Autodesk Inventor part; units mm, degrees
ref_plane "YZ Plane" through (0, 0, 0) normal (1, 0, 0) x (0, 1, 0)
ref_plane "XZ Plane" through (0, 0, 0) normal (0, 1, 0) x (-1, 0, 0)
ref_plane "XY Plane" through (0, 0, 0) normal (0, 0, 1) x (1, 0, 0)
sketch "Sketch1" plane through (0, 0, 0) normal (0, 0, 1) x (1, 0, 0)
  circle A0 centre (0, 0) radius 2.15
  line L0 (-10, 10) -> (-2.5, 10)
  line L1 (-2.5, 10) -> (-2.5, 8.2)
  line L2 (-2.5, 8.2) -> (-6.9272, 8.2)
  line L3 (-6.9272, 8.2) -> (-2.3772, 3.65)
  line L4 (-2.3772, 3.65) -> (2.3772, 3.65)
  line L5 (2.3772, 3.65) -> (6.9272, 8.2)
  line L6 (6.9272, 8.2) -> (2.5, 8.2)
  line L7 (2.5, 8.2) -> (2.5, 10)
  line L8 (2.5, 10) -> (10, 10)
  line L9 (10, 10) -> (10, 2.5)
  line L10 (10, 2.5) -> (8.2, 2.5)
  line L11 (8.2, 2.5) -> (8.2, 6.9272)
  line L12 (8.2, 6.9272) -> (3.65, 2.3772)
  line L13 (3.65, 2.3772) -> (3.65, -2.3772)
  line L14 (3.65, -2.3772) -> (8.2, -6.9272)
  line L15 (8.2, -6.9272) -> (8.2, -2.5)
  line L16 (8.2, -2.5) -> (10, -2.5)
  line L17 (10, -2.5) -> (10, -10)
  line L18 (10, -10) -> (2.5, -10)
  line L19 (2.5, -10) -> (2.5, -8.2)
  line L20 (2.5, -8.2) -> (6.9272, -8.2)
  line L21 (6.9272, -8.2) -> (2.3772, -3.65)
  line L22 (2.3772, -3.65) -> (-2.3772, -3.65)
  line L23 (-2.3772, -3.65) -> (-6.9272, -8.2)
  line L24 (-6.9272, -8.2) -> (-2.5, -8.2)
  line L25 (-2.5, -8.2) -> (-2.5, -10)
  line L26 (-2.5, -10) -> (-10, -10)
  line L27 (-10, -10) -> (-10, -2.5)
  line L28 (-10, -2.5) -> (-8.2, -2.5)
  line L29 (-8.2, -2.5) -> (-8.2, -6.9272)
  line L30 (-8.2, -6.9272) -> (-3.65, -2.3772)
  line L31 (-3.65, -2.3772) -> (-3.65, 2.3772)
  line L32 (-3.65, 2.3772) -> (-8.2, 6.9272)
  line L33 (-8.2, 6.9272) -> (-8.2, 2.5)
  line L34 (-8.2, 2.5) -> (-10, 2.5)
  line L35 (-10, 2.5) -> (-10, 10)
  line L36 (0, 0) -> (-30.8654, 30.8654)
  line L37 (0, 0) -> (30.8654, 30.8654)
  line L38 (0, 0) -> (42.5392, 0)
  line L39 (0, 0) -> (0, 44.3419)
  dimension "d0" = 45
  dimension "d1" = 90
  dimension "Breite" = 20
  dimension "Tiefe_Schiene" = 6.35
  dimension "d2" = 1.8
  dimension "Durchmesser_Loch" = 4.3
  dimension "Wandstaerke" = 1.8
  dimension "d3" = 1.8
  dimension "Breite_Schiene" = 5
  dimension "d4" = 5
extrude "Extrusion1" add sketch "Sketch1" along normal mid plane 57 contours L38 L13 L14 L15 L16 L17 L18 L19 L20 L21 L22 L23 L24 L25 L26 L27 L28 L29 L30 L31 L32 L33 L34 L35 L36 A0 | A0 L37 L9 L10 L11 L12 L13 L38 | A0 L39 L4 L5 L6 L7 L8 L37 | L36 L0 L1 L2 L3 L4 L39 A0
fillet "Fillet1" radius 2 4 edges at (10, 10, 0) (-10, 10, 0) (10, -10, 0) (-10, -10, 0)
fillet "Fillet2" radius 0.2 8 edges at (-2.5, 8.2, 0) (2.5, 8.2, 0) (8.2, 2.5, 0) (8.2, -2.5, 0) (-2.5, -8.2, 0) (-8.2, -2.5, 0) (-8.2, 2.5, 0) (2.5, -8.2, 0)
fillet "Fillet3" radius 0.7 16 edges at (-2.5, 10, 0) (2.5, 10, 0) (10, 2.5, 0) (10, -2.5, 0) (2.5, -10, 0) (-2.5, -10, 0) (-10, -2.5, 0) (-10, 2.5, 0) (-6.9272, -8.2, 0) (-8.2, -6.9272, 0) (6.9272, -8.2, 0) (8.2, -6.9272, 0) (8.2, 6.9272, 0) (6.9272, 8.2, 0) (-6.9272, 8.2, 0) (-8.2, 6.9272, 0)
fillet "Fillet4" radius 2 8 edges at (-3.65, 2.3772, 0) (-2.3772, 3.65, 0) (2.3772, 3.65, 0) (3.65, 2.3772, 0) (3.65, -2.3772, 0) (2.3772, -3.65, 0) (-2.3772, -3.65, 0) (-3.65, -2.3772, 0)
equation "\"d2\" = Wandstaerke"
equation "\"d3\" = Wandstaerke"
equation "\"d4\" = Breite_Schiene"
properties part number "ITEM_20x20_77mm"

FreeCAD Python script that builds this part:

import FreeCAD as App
import Part
import Sketcher

V = App.Vector


def edges_at(feature, points):
    """Names of the edges that pass closest to the given points."""
    edges = feature.Shape.Edges
    near = lambda p: min(range(len(edges)), key=lambda i: edges[i].distToShape(Part.Vertex(*p))[0])
    return sorted({f"Edge{near(p) + 1}" for p in points})

doc = App.newDocument("Part")
params = doc.addObject("Spreadsheet::Sheet", "Params")
for row, (alias, value) in enumerate([
    ("sketch1_diameter", "4.3 mm"),
    ("sketch1_width", "1.8 mm"),
    ("sketch1_width2", "7.5 mm"),
    ("pad1_length", "57 mm"),
    ("fillet_radius", "2 mm"),
    ("fillet2_radius", "0.2 mm"),
    ("fillet3_radius", "0.7 mm"),
    ("fillet4_radius", "2 mm"),
], start=1):
    params.set(f"A{row}", alias)
    params.set(f"B{row}", "=" + value)
    params.setAlias(f"B{row}", alias)

body = doc.addObject("PartDesign::Body", "Body")

# Sketch on XY plane
sketch1 = doc.addObject("Sketcher::SketchObject", "Sketch")
body.addObject(sketch1)
sketch1.AttachmentSupport = (doc.XY_Plane, [""])
sketch1.MapMode = "FlatFace"
sketch1.addGeometry([
    Part.LineSegment(V(3.65, -2.3772, 0), V(3.65, 2.3772, 0)),  # 0
    Part.LineSegment(V(3.65, 2.3772, 0), V(8.2, 6.9272, 0)),  # 1
    Part.LineSegment(V(8.2, 6.9272, 0), V(8.2, 2.5, 0)),  # 2
    Part.LineSegment(V(8.2, 2.5, 0), V(10, 2.5, 0)),  # 3
    Part.LineSegment(V(10, 2.5, 0), V(10, 10, 0)),  # 4
    Part.LineSegment(V(10, 10, 0), V(2.5, 10, 0)),  # 5
    Part.LineSegment(V(2.5, 10, 0), V(2.5, 8.2, 0)),  # 6
    Part.LineSegment(V(2.5, 8.2, 0), V(6.9272, 8.2, 0)),  # 7
    Part.LineSegment(V(6.9272, 8.2, 0), V(2.3772, 3.65, 0)),  # 8
    Part.LineSegment(V(2.3772, 3.65, 0), V(-2.3772, 3.65, 0)),  # 9
    Part.LineSegment(V(-2.3772, 3.65, 0), V(-6.9272, 8.2, 0)),  # 10
    Part.LineSegment(V(-6.9272, 8.2, 0), V(-2.5, 8.2, 0)),  # 11
    Part.LineSegment(V(-2.5, 8.2, 0), V(-2.5, 10, 0)),  # 12
    Part.LineSegment(V(-2.5, 10, 0), V(-10, 10, 0)),  # 13
    Part.LineSegment(V(-10, 10, 0), V(-10, 2.5, 0)),  # 14
    Part.LineSegment(V(-10, 2.5, 0), V(-8.2, 2.5, 0)),  # 15
    Part.LineSegment(V(-8.2, 2.5, 0), V(-8.2, 6.9272, 0)),  # 16
    Part.LineSegment(V(-8.2, 6.9272, 0), V(-3.65, 2.3772, 0)),  # 17
    Part.LineSegment(V(-3.65, 2.3772, 0), V(-3.65, -2.3772, 0)),  # 18
    Part.LineSegment(V(-3.65, -2.3772, 0), V(-8.2, -6.9272, 0)),  # 19
    Part.LineSegment(V(-8.2, -6.9272, 0), V(-8.2, -2.5, 0)),  # 20
    Part.LineSegment(V(-8.2, -2.5, 0), V(-10, -2.5, 0)),  # 21
    Part.LineSegment(V(-10, -2.5, 0), V(-10, -10, 0)),  # 22
    Part.LineSegment(V(-10, -10, 0), V(-2.5, -10, 0)),  # 23
    Part.LineSegment(V(-2.5, -10, 0), V(-2.5, -8.2, 0)),  # 24
    Part.LineSegment(V(-2.5, -8.2, 0), V(-6.9272, -8.2, 0)),  # 25
    Part.LineSegment(V(-6.9272, -8.2, 0), V(-2.3772, -3.65, 0)),  # 26
    Part.LineSegment(V(-2.3772, -3.65, 0), V(2.3772, -3.65, 0)),  # 27
    Part.LineSegment(V(2.3772, -3.65, 0), V(6.9272, -8.2, 0)),  # 28
    Part.LineSegment(V(6.9272, -8.2, 0), V(2.5, -8.2, 0)),  # 29
    Part.LineSegment(V(2.5, -8.2, 0), V(2.5, -10, 0)),  # 30
    Part.LineSegment(V(2.5, -10, 0), V(10, -10, 0)),  # 31
    Part.LineSegment(V(10, -10, 0), V(10, -2.5, 0)),  # 32
    Part.LineSegment(V(10, -2.5, 0), V(8.2, -2.5, 0)),  # 33
    Part.LineSegment(V(8.2, -2.5, 0), V(8.2, -6.9272, 0)),  # 34
    Part.LineSegment(V(8.2, -6.9272, 0), V(3.65, -2.3772, 0)),  # 35
    Part.Circle(V(0, 0, 0), V(0, 0, 1), 2.15),  # 36
], False)
sketch1.addConstraint([
    Sketcher.Constraint("Coincident", 0, 2, 1, 1),
    Sketcher.Constraint("Coincident", 1, 2, 2, 1),
    Sketcher.Constraint("Coincident", 2, 2, 3, 1),
    Sketcher.Constraint("Coincident", 3, 2, 4, 1),
    Sketcher.Constraint("Coincident", 4, 2, 5, 1),
    Sketcher.Constraint("Coincident", 5, 2, 6, 1),
    Sketcher.Constraint("Coincident", 6, 2, 7, 1),
    Sketcher.Constraint("Coincident", 7, 2, 8, 1),
    Sketcher.Constraint("Coincident", 8, 2, 9, 1),
    Sketcher.Constraint("Coincident", 9, 2, 10, 1),
    Sketcher.Constraint("Coincident", 10, 2, 11, 1),
    Sketcher.Constraint("Coincident", 11, 2, 12, 1),
    Sketcher.Constraint("Coincident", 12, 2, 13, 1),
    Sketcher.Constraint("Coincident", 13, 2, 14, 1),
    Sketcher.Constraint("Coincident", 14, 2, 15, 1),
    Sketcher.Constraint("Coincident", 15, 2, 16, 1),
    Sketcher.Constraint("Coincident", 16, 2, 17, 1),
    Sketcher.Constraint("Coincident", 17, 2, 18, 1),
    Sketcher.Constraint("Coincident", 18, 2, 19, 1),
    Sketcher.Constraint("Coincident", 19, 2, 20, 1),
    Sketcher.Constraint("Coincident", 20, 2, 21, 1),
    Sketcher.Constraint("Coincident", 21, 2, 22, 1),
    Sketcher.Constraint("Coincident", 22, 2, 23, 1),
    Sketcher.Constraint("Coincident", 23, 2, 24, 1),
    Sketcher.Constraint("Coincident", 24, 2, 25, 1),
    Sketcher.Constraint("Coincident", 25, 2, 26, 1),
    Sketcher.Constraint("Coincident", 26, 2, 27, 1),
    Sketcher.Constraint("Coincident", 27, 2, 28, 1),
    Sketcher.Constraint("Coincident", 28, 2, 29, 1),
    Sketcher.Constraint("Coincident", 29, 2, 30, 1),
    Sketcher.Constraint("Coincident", 30, 2, 31, 1),
    Sketcher.Constraint("Coincident", 31, 2, 32, 1),
    Sketcher.Constraint("Coincident", 32, 2, 33, 1),
    Sketcher.Constraint("Coincident", 33, 2, 34, 1),
    Sketcher.Constraint("Coincident", 34, 2, 35, 1),
    Sketcher.Constraint("Coincident", 35, 2, 0, 1),
    Sketcher.Constraint("Vertical", 0),
    Sketcher.Constraint("Vertical", 2),
    Sketcher.Constraint("Horizontal", 3),
    Sketcher.Constraint("Vertical", 4),
    Sketcher.Constraint("Horizontal", 5),
    Sketcher.Constraint("Vertical", 6),
    Sketcher.Constraint("Horizontal", 7),
    Sketcher.Constraint("Horizontal", 9),
    Sketcher.Constraint("Horizontal", 11),
    Sketcher.Constraint("Vertical", 12),
    Sketcher.Constraint("Horizontal", 13),
    Sketcher.Constraint("Vertical", 14),
    Sketcher.Constraint("Horizontal", 15),
    Sketcher.Constraint("Vertical", 16),
    Sketcher.Constraint("Vertical", 18),
    Sketcher.Constraint("Vertical", 20),
    Sketcher.Constraint("Horizontal", 21),
    Sketcher.Constraint("Vertical", 22),
    Sketcher.Constraint("Horizontal", 23),
    Sketcher.Constraint("Vertical", 24),
    Sketcher.Constraint("Horizontal", 25),
    Sketcher.Constraint("Horizontal", 27),
    Sketcher.Constraint("Horizontal", 29),
    Sketcher.Constraint("Vertical", 30),
    Sketcher.Constraint("Horizontal", 31),
    Sketcher.Constraint("Vertical", 32),
    Sketcher.Constraint("Horizontal", 33),
    Sketcher.Constraint("Vertical", 34),
    Sketcher.Constraint("Coincident", 36, 3, -1, 1),
    Sketcher.Constraint("Symmetric", 0, 2, 18, 2, -1, 1),
    Sketcher.Constraint("Symmetric", 1, 2, 19, 2, -1, 1),
    Sketcher.Constraint("Symmetric", 3, 2, 21, 2, -1, 1),
    Sketcher.Constraint("Symmetric", 5, 2, 23, 2, -1, 1),
    Sketcher.Constraint("Symmetric", 7, 2, 25, 2, -1, 1),
    Sketcher.Constraint("Symmetric", 8, 2, 26, 2, -1, 1),
    Sketcher.Constraint("Symmetric", 10, 2, 28, 2, -1, 1),
    Sketcher.Constraint("Symmetric", 12, 2, 30, 2, -1, 1),
    Sketcher.Constraint("Symmetric", 14, 2, 32, 2, -1, 1),
    Sketcher.Constraint("Symmetric", 16, 2, 34, 2, -1, 1),
    Sketcher.Constraint("Symmetric", 7, 2, 10, 2, -2),
    Sketcher.Constraint("Symmetric", 5, 2, 12, 2, -2),
    Sketcher.Constraint("Symmetric", 3, 2, 14, 2, -2),
    Sketcher.Constraint("Symmetric", 1, 2, 16, 2, -2),
    Sketcher.Constraint("Parallel", 1, 8),
    Sketcher.Constraint("Perpendicular", 8, 10),
    Sketcher.Constraint("Parallel", 10, 17),
    Sketcher.Constraint("Perpendicular", 26, 28),
    Sketcher.Constraint("Parallel", 28, 35),
    Sketcher.Constraint("Horizontal", 0, 2, 17, 2),
    Sketcher.Constraint("Equal", 27, 0),
    Sketcher.Constraint("Equal", 29, 2),
    Sketcher.Constraint("Equal", 31, 4),
    Sketcher.Constraint("Equal", 33, 6),
    Sketcher.Constraint("Equal", 1, 8),
    Sketcher.Constraint("Diameter", 36, 4.3),
    Sketcher.Constraint("DistanceX", 3, 1, 3, 2, 1.8),
    Sketcher.Constraint("DistanceX", 11, 2, 6, 2, 5.0),
    Sketcher.Constraint("DistanceX", 0, 2, 3, 2, 6.35),
    Sketcher.Constraint("DistanceX", 5, 2, 5, 1, 7.5),
    Sketcher.Constraint("DistanceX", 7, 1, 7, 2, 4.4272),
])
sketch1.setExpression("Constraints[90]", "Params.sketch1_diameter")
sketch1.setExpression("Constraints[91]", "Params.sketch1_width")
sketch1.setExpression("Constraints[94]", "Params.sketch1_width2")
pad1 = doc.addObject("PartDesign::Pad", "Pad")
body.addObject(pad1)
pad1.Profile = sketch1
pad1.setExpression("Length", "Params.pad1_length")
pad1.Midplane = True
doc.recompute()

fillet = doc.addObject("PartDesign::Fillet", "Fillet")
body.addObject(fillet)
fillet.Base = (pad1, edges_at(pad1, [
    (10, 10, 0),
    (-10, 10, 0),
    (10, -10, 0),
    (-10, -10, 0),
]))
fillet.setExpression("Radius", "Params.fillet_radius")
doc.recompute()

fillet2 = doc.addObject("PartDesign::Fillet", "Fillet001")
body.addObject(fillet2)
fillet2.Base = (fillet, edges_at(fillet, [
    (-2.5, 8.2, 0),
    (2.5, 8.2, 0),
    (8.2, 2.5, 0),
    (8.2, -2.5, 0),
    (-2.5, -8.2, 0),
    (-8.2, -2.5, 0),
    (-8.2, 2.5, 0),
    (2.5, -8.2, 0),
]))
fillet2.setExpression("Radius", "Params.fillet2_radius")
doc.recompute()

fillet3 = doc.addObject("PartDesign::Fillet", "Fillet002")
body.addObject(fillet3)
fillet3.Base = (fillet2, edges_at(fillet2, [
    (-2.5, 10, 0),
    (2.5, 10, 0),
    (10, 2.5, 0),
    (10, -2.5, 0),
    (2.5, -10, 0),
    (-2.5, -10, 0),
    (-10, -2.5, 0),
    (-10, 2.5, 0),
    (-6.927, -8.2, 0),
    (-8.2, -6.927, 0),
    (6.927, -8.2, 0),
    (8.2, -6.927, 0),
    (8.2, 6.927, 0),
    (6.927, 8.2, 0),
    (-6.927, 8.2, 0),
    (-8.2, 6.927, 0),
]))
fillet3.setExpression("Radius", "Params.fillet3_radius")
doc.recompute()

fillet4 = doc.addObject("PartDesign::Fillet", "Fillet003")
body.addObject(fillet4)
fillet4.Base = (fillet3, edges_at(fillet3, [
    (-3.65, 2.377, 0),
    (-2.377, 3.65, 0),
    (2.377, 3.65, 0),
    (3.65, 2.377, 0),
    (3.65, -2.377, 0),
    (2.377, -3.65, 0),
    (-2.377, -3.65, 0),
    (-3.65, -2.377, 0),
]))
fillet4.setExpression("Radius", "Params.fillet4_radius")

doc.recompute()
